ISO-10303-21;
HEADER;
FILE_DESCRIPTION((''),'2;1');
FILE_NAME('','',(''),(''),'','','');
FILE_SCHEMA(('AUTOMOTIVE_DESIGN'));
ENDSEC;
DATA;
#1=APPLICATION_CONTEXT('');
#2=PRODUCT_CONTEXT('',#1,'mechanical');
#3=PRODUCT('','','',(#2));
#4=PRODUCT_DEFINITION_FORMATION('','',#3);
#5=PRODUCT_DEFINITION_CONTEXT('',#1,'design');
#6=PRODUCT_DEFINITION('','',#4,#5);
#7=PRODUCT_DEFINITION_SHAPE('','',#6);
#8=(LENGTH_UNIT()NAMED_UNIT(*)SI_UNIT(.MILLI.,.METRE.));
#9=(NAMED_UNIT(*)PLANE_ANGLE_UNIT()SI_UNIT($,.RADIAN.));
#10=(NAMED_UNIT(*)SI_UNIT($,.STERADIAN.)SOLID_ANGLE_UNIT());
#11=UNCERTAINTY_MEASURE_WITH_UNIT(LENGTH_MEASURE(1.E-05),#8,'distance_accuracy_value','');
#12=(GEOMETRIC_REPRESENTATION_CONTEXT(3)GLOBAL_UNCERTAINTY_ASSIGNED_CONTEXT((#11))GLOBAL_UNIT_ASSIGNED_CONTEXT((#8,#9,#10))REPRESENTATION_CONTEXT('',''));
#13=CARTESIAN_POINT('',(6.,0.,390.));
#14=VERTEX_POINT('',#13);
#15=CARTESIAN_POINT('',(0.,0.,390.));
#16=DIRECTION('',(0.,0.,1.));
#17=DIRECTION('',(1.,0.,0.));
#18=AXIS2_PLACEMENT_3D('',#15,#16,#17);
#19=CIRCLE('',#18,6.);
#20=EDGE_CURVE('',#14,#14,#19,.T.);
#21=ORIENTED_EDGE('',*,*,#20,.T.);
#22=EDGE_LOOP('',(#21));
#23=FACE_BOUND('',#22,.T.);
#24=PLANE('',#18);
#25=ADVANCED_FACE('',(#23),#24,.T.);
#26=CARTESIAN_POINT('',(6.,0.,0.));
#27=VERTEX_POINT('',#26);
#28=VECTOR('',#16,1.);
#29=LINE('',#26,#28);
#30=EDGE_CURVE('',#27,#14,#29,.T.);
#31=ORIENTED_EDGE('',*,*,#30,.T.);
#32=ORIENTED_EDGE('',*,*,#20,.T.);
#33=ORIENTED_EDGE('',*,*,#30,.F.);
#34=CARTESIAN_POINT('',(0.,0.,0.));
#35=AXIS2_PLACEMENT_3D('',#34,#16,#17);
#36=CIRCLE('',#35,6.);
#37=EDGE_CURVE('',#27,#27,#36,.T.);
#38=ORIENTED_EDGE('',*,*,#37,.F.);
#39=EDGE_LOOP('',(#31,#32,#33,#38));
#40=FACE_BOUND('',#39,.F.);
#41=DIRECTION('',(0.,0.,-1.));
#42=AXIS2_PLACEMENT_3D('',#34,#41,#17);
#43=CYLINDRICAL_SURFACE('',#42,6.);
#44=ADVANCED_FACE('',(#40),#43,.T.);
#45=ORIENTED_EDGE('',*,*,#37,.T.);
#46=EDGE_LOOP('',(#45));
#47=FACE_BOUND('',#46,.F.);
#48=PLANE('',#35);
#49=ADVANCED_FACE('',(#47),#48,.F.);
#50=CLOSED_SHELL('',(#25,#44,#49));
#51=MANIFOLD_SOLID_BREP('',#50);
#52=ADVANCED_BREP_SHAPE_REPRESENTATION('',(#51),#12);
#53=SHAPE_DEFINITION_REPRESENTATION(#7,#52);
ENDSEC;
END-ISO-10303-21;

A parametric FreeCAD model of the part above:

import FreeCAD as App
import Part
import Sketcher
from FreeCAD import Vector

doc = App.newDocument("Part")
body = doc.addObject("PartDesign::Body", "Body")

# Sketch on XY plane
sketch1 = body.newObject("Sketcher::SketchObject", "Sketch")
sketch1.AttachmentSupport = (doc.getObject("XY_Plane"), [""])
sketch1.MapMode = "FlatFace"
sketch1.addGeometry(Part.Circle(Vector(0, 0, 0), Vector(0, 0, 1), 6), False)
sketch1.addConstraint(Sketcher.Constraint("Coincident", 0, 3, -1, 1))
sketch1.addConstraint(Sketcher.Constraint("Diameter", 0, 12.0))
pad1 = body.newObject("PartDesign::Pad", "Pad")
pad1.Profile = sketch1
pad1.Length = 390

doc.recompute()
